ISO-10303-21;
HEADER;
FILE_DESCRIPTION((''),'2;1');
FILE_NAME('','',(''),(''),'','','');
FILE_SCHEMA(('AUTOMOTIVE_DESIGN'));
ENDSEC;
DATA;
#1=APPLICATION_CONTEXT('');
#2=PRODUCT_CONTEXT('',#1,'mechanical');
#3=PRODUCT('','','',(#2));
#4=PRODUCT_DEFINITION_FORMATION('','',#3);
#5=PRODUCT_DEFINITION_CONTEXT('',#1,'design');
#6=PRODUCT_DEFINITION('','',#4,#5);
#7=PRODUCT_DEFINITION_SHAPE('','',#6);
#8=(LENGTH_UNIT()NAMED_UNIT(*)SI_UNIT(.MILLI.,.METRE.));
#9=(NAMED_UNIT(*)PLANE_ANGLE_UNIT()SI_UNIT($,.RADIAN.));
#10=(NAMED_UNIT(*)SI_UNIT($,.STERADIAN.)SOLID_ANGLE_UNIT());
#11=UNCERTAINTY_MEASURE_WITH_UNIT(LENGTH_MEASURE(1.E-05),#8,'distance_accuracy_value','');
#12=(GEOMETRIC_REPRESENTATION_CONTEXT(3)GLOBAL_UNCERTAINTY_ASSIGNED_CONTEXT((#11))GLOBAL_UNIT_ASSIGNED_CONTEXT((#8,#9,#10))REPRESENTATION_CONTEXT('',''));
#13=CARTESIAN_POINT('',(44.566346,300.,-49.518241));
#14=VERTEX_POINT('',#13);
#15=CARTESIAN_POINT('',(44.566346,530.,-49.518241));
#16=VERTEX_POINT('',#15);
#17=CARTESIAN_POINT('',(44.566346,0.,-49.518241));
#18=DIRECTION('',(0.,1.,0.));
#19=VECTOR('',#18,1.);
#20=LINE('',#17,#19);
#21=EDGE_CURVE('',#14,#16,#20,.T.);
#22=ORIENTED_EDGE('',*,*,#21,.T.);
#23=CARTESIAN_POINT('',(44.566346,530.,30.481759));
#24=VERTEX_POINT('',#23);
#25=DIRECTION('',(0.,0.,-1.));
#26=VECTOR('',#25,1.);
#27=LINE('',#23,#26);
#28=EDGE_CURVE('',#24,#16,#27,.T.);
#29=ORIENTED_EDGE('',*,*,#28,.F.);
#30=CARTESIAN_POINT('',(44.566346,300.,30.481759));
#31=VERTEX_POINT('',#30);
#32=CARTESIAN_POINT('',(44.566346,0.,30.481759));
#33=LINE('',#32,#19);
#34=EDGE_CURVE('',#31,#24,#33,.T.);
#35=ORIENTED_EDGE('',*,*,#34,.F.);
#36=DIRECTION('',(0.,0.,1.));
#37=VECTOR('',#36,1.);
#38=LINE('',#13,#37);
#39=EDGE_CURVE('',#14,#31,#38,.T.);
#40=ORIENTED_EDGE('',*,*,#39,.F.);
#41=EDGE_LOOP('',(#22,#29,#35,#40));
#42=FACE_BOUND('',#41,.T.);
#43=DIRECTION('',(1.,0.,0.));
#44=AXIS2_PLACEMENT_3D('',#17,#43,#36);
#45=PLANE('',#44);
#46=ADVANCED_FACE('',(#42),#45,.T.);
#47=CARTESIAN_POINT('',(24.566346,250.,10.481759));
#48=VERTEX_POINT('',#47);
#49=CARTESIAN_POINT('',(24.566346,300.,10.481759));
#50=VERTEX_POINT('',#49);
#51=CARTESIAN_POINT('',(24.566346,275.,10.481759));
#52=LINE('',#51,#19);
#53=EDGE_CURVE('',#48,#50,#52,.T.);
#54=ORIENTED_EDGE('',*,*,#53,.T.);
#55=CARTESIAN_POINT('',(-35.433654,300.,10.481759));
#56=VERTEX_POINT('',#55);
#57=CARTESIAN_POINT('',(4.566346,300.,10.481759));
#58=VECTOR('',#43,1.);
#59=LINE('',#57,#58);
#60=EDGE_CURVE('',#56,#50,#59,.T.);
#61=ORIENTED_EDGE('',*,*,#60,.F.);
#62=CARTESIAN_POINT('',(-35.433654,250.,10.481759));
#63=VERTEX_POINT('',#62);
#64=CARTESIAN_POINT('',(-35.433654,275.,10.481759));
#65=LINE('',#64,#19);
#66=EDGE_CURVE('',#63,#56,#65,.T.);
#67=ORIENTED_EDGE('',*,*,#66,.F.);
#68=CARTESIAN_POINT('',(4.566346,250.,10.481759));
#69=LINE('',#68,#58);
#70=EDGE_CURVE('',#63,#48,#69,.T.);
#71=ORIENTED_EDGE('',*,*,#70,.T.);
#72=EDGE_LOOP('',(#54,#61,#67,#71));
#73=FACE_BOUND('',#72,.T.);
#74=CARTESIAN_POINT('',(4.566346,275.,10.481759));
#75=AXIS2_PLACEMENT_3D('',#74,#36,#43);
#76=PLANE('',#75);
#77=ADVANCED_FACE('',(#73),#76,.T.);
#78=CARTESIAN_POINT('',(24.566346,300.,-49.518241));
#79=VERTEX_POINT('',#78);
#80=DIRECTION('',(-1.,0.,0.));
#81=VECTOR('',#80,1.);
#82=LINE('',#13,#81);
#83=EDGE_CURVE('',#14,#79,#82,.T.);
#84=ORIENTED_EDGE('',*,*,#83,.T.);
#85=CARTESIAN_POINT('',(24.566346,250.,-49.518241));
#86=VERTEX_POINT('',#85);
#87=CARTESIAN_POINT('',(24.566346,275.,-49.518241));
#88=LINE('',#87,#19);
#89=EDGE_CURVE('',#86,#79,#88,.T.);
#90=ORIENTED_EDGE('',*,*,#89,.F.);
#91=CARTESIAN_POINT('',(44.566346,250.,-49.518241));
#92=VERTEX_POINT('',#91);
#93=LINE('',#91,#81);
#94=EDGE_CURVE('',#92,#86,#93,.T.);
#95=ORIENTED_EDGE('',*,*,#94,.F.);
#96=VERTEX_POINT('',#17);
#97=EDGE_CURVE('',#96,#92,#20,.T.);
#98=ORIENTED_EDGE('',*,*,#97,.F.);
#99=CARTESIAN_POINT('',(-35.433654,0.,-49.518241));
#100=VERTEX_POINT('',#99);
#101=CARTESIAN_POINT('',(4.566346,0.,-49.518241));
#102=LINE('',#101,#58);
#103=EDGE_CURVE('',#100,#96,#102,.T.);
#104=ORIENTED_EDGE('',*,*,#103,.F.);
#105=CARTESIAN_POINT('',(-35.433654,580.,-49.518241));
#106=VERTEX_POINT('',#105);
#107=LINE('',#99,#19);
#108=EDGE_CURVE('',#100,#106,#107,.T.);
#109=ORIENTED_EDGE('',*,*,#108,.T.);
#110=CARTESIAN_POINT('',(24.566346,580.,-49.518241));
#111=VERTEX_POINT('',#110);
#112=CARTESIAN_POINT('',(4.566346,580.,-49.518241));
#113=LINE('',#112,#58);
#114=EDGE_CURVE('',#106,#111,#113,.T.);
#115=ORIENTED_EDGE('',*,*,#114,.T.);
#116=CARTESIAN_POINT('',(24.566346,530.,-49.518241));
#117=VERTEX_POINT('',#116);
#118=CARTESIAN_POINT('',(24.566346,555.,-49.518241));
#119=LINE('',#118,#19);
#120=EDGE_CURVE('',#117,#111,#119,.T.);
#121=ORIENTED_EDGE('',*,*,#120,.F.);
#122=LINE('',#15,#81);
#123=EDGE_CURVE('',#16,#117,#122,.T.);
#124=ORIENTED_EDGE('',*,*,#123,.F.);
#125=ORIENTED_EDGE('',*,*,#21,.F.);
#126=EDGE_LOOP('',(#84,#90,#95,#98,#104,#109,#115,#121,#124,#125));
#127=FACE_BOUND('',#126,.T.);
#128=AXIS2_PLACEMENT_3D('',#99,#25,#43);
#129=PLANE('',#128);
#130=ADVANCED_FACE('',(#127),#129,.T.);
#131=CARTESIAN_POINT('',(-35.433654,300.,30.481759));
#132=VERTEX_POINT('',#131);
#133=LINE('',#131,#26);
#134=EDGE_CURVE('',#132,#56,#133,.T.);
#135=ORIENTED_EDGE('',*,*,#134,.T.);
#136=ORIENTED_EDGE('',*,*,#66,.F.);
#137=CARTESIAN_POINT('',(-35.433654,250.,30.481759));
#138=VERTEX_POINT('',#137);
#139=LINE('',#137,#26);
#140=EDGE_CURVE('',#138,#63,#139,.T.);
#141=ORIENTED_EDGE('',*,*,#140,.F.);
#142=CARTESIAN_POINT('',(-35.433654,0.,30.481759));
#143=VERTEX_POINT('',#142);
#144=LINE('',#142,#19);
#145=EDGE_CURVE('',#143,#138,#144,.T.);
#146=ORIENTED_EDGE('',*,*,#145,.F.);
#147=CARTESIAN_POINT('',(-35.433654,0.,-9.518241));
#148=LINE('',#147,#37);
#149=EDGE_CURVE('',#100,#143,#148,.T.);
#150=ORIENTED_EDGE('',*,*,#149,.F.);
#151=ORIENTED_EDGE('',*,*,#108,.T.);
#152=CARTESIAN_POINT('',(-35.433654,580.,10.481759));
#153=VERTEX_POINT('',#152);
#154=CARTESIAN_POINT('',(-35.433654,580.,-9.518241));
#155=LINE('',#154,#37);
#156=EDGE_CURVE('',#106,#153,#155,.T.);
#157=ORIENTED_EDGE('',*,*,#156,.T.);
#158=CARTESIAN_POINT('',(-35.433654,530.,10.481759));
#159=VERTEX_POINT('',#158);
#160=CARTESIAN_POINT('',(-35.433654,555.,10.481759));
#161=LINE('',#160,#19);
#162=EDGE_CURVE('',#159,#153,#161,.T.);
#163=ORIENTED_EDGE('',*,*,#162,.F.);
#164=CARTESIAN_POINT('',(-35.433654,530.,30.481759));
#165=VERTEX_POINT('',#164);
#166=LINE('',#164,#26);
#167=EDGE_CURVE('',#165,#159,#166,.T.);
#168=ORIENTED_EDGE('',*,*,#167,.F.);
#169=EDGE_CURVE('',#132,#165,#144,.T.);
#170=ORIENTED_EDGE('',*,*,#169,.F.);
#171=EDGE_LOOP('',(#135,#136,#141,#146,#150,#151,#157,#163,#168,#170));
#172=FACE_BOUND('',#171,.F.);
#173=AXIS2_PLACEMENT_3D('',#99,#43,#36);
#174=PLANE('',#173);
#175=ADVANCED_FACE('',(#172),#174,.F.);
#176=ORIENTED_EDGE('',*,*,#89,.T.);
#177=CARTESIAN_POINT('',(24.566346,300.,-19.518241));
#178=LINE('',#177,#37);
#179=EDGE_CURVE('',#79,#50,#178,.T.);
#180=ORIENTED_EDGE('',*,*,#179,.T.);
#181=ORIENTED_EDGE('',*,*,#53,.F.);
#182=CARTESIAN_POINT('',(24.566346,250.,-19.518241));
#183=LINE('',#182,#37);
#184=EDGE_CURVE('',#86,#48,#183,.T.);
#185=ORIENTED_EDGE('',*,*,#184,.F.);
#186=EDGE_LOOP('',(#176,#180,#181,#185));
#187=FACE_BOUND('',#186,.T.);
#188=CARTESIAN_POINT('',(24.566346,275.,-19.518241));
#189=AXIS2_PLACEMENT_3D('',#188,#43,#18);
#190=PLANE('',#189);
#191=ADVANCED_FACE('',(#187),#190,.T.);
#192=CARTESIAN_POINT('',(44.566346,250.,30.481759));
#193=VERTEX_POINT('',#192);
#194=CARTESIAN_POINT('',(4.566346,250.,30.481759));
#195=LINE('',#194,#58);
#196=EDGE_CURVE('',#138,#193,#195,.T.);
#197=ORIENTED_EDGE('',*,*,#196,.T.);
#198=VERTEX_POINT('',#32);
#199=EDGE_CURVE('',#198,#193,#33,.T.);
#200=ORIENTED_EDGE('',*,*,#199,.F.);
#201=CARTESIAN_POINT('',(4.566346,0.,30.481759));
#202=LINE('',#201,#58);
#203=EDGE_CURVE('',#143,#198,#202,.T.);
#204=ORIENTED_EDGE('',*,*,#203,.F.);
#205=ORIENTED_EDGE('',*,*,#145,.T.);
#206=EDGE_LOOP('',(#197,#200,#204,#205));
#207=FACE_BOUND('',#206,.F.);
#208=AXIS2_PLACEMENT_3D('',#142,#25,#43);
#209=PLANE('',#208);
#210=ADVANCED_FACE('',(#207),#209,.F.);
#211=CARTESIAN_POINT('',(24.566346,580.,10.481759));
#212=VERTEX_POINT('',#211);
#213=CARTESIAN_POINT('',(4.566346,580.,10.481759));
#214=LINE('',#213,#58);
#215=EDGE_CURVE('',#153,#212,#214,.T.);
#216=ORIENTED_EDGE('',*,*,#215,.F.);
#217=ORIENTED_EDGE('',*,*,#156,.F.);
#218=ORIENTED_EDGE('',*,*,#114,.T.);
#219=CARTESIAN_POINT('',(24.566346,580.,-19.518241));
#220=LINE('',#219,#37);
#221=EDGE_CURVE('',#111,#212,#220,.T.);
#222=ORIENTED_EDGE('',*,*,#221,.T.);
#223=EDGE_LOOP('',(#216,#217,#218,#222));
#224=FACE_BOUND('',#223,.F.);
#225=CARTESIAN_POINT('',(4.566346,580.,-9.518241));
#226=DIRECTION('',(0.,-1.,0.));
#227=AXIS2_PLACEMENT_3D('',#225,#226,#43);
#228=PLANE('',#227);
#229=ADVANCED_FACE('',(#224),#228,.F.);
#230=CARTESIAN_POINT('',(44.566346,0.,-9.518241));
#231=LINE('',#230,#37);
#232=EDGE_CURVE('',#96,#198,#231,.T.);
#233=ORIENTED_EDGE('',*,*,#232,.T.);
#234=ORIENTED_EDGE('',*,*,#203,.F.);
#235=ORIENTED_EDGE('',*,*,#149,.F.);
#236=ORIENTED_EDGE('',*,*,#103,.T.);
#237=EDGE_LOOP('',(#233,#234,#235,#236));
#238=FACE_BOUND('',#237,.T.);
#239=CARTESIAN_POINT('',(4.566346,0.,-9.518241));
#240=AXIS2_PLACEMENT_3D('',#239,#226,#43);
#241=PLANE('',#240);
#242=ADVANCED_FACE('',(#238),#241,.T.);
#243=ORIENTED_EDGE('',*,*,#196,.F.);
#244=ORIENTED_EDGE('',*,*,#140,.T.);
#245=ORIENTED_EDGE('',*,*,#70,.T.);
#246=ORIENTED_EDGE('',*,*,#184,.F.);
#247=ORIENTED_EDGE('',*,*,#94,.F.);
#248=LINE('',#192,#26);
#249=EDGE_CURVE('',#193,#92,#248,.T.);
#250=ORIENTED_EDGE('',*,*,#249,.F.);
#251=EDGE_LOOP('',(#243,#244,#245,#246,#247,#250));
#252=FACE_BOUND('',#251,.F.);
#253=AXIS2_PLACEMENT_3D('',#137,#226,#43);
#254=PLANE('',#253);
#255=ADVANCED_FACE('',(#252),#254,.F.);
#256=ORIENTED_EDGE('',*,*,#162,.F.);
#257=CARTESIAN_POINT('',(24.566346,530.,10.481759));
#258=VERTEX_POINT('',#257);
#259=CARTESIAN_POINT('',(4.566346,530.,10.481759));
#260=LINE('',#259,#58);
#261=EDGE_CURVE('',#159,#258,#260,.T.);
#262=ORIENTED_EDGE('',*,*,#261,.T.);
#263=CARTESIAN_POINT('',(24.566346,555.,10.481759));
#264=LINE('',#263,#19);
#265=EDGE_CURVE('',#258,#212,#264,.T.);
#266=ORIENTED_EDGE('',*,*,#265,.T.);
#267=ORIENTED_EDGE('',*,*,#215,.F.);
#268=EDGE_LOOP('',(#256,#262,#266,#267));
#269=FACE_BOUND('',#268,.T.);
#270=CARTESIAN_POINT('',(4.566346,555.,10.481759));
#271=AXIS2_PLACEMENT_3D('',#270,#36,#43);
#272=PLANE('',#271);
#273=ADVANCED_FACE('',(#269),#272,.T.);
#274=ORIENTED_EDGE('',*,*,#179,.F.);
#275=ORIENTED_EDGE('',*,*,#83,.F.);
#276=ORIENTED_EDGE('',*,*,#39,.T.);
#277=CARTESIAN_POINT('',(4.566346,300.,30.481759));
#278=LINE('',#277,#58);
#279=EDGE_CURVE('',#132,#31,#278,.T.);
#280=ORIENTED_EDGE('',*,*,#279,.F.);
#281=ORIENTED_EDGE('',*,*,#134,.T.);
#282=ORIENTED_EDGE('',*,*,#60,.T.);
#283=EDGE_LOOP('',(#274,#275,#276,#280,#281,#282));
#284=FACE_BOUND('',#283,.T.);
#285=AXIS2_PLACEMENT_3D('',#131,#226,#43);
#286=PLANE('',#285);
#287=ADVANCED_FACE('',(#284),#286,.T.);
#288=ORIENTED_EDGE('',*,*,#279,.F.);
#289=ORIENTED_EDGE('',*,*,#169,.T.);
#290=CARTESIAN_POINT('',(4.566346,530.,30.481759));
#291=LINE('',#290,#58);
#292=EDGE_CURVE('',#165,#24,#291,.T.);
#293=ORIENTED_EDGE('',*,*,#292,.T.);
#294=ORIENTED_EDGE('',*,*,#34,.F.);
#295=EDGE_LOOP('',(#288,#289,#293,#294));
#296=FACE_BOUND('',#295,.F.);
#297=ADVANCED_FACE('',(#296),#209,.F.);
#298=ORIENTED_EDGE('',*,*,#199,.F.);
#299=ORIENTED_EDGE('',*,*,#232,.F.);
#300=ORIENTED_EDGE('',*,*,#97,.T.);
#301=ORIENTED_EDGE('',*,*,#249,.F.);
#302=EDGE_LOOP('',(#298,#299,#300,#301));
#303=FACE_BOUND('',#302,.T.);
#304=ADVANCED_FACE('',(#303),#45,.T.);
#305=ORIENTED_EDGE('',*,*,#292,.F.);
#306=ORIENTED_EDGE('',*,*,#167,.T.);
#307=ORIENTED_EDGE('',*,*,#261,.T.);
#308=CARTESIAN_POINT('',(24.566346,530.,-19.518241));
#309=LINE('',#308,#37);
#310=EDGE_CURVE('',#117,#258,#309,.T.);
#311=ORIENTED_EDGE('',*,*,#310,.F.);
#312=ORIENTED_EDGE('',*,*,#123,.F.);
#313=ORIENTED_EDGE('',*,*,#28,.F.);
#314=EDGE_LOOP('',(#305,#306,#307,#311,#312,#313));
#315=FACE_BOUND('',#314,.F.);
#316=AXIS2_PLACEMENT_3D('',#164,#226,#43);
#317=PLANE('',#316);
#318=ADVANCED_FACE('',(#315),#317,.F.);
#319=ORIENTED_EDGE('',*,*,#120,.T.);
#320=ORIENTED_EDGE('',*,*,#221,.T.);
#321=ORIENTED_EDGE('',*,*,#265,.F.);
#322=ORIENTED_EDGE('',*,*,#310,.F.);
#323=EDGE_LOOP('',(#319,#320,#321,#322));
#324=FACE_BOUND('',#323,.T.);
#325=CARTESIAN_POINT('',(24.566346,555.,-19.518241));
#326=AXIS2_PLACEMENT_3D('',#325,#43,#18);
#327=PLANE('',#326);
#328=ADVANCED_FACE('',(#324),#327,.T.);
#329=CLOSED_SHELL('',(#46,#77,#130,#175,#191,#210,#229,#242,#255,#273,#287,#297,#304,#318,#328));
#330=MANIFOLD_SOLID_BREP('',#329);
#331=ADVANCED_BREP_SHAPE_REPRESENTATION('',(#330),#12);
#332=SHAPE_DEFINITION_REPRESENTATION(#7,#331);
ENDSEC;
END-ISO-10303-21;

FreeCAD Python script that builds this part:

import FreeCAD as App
import Part
import Sketcher
Q = App.Units.Quantity


def add_polygon(sketch, points):
    """Adds a closed chain of lines whose ends are joined by coincident constraints."""
    first, n = sketch.GeometryCount, len(points)
    for a, b in zip(points, points[1:] + points[:1]):
        sketch.addGeometry(Part.LineSegment(App.Vector(*a, 0), App.Vector(*b, 0)), False)
    for i in range(n):
        sketch.addConstraint(Sketcher.Constraint("Coincident", first + i, 2, first + (i + 1) % n, 1))

doc = App.newDocument("Part")
params = doc.addObject("Spreadsheet::Sheet", "Params")
for row, (alias, value) in enumerate([
    ("sketch1_width", "80 mm"),
    ("pad1_length", "580 mm"),
    ("sketch2_width", "80 mm"),
    ("sketch2_height", "50 mm"),
    ("pocket1_length", "20 mm"),
    ("sketch3_width", "50 mm"),
    ("sketch3_height", "60 mm"),
    ("pocket2_length", "20 mm"),
    ("sketch4_width", "80 mm"),
    ("sketch4_height", "50 mm"),
    ("pocket3_length", "20 mm"),
    ("sketch5_width", "50 mm"),
    ("sketch5_height", "60 mm"),
    ("pocket4_length", "20 mm"),
], start=1):
    params.set(f"A{row}", alias)
    params.set(f"B{row}", "=" + value)
    params.setAlias(f"B{row}", alias)

body = doc.addObject("PartDesign::Body", "Body")

sketch1 = doc.addObject("Sketcher::SketchObject", "Sketch")
body.addObject(sketch1)
sketch1.AttachmentSupport = (doc.XZ_Plane, [""])
sketch1.MapMode = "FlatFace"
add_polygon(sketch1, [(-35, 30), (-35, -50), (45, -50), (45, 30)])
sketch1.addConstraint(Sketcher.Constraint("Vertical", 0))
sketch1.addConstraint(Sketcher.Constraint("Horizontal", 1))
sketch1.addConstraint(Sketcher.Constraint("Vertical", 2))
sketch1.addConstraint(Sketcher.Constraint("Horizontal", 3))
sketch1.addConstraint(Sketcher.Constraint("Equal", 3, 0))
sketch1.addConstraint(Sketcher.Constraint("DistanceX", 1, 1, 1, 2, Q("80 mm")))
sketch1.addConstraint(Sketcher.Constraint("DistanceY", 0, 2, -1, 1, Q("49.518241 mm")))
sketch1.addConstraint(Sketcher.Constraint("DistanceX", 0, 2, -1, 1, Q("35.433654 mm")))
sketch1.setExpression("Constraints[9]", "Params.sketch1_width")
pad1 = doc.addObject("PartDesign::Pad", "Pad")
body.addObject(pad1)
pad1.Profile = sketch1
pad1.setExpression("Length", "Params.pad1_length")
pad1.Reversed = True

sketch2 = doc.addObject("Sketcher::SketchObject", "Sketch001")
body.addObject(sketch2)
sketch2.AttachmentSupport = (doc.XY_Plane, [""])
sketch2.MapMode = "FlatFace"
sketch2.AttachmentOffset = App.Placement(App.Vector(0, 0, 30.481759), App.Rotation())
add_polygon(sketch2, [(-35, 300), (-35, 250), (45, 250), (45, 300)])
sketch2.addConstraint(Sketcher.Constraint("Vertical", 0))
sketch2.addConstraint(Sketcher.Constraint("Horizontal", 1))
sketch2.addConstraint(Sketcher.Constraint("Vertical", 2))
sketch2.addConstraint(Sketcher.Constraint("Horizontal", 3))
sketch2.addConstraint(Sketcher.Constraint("DistanceX", 1, 1, 1, 2, Q("80 mm")))
sketch2.addConstraint(Sketcher.Constraint("DistanceY", 0, 2, 0, 1, Q("50 mm")))
sketch2.addConstraint(Sketcher.Constraint("DistanceY", -1, 1, 0, 2, Q("250 mm")))
sketch2.addConstraint(Sketcher.Constraint("DistanceX", 0, 2, -1, 1, Q("35.433654 mm")))
sketch2.setExpression("Constraints[8]", "Params.sketch2_width")
sketch2.setExpression("Constraints[9]", "Params.sketch2_height")
pocket1 = doc.addObject("PartDesign::Pocket", "Pocket")
body.addObject(pocket1)
pocket1.Profile = sketch2
pocket1.setExpression("Length", "Params.pocket1_length")

sketch3 = doc.addObject("Sketcher::SketchObject", "Sketch002")
body.addObject(sketch3)
sketch3.AttachmentSupport = (doc.YZ_Plane, [""])
sketch3.MapMode = "FlatFace"
sketch3.AttachmentOffset = App.Placement(App.Vector(0, 0, 44.566346), App.Rotation())
add_polygon(sketch3, [(250, 10), (250, -50), (300, -50), (300, 10)])
sketch3.addConstraint(Sketcher.Constraint("Vertical", 0))
sketch3.addConstraint(Sketcher.Constraint("Horizontal", 1))
sketch3.addConstraint(Sketcher.Constraint("Vertical", 2))
sketch3.addConstraint(Sketcher.Constraint("Horizontal", 3))
sketch3.addConstraint(Sketcher.Constraint("DistanceX", 1, 1, 1, 2, Q("50 mm")))
sketch3.addConstraint(Sketcher.Constraint("DistanceY", 0, 2, 0, 1, Q("60 mm")))
sketch3.addConstraint(Sketcher.Constraint("DistanceX", -1, 1, 0, 2, Q("250 mm")))
sketch3.addConstraint(Sketcher.Constraint("DistanceY", 0, 2, -1, 1, Q("49.518241 mm")))
sketch3.setExpression("Constraints[8]", "Params.sketch3_width")
sketch3.setExpression("Constraints[9]", "Params.sketch3_height")
pocket2 = doc.addObject("PartDesign::Pocket", "Pocket001")
body.addObject(pocket2)
pocket2.Profile = sketch3
pocket2.setExpression("Length", "Params.pocket2_length")

sketch4 = doc.addObject("Sketcher::SketchObject", "Sketch003")
body.addObject(sketch4)
sketch4.AttachmentSupport = (doc.XY_Plane, [""])
sketch4.MapMode = "FlatFace"
sketch4.AttachmentOffset = App.Placement(App.Vector(0, 0, 30.481759), App.Rotation())
add_polygon(sketch4, [(-35, 580), (-35, 530), (45, 530), (45, 580)])
sketch4.addConstraint(Sketcher.Constraint("Vertical", 0))
sketch4.addConstraint(Sketcher.Constraint("Horizontal", 1))
sketch4.addConstraint(Sketcher.Constraint("Vertical", 2))
sketch4.addConstraint(Sketcher.Constraint("Horizontal", 3))
sketch4.addConstraint(Sketcher.Constraint("DistanceX", 1, 1, 1, 2, Q("80 mm")))
sketch4.addConstraint(Sketcher.Constraint("DistanceY", 0, 2, 0, 1, Q("50 mm")))
sketch4.addConstraint(Sketcher.Constraint("DistanceY", -1, 1, 0, 2, Q("530 mm")))
sketch4.addConstraint(Sketcher.Constraint("DistanceX", 0, 2, -1, 1, Q("35.433654 mm")))
sketch4.setExpression("Constraints[8]", "Params.sketch4_width")
sketch4.setExpression("Constraints[9]", "Params.sketch4_height")
pocket3 = doc.addObject("PartDesign::Pocket", "Pocket002")
body.addObject(pocket3)
pocket3.Profile = sketch4
pocket3.setExpression("Length", "Params.pocket3_length")

sketch5 = doc.addObject("Sketcher::SketchObject", "Sketch004")
body.addObject(sketch5)
sketch5.AttachmentSupport = (doc.YZ_Plane, [""])
sketch5.MapMode = "FlatFace"
sketch5.AttachmentOffset = App.Placement(App.Vector(0, 0, 44.566346), App.Rotation())
add_polygon(sketch5, [(530, 10), (530, -50), (580, -50), (580, 10)])
sketch5.addConstraint(Sketcher.Constraint("Vertical", 0))
sketch5.addConstraint(Sketcher.Constraint("Horizontal", 1))
sketch5.addConstraint(Sketcher.Constraint("Vertical", 2))
sketch5.addConstraint(Sketcher.Constraint("Horizontal", 3))
sketch5.addConstraint(Sketcher.Constraint("DistanceX", 1, 1, 1, 2, Q("50 mm")))
sketch5.addConstraint(Sketcher.Constraint("DistanceY", 0, 2, 0, 1, Q("60 mm")))
sketch5.addConstraint(Sketcher.Constraint("DistanceX", -1, 1, 0, 2, Q("530 mm")))
sketch5.addConstraint(Sketcher.Constraint("DistanceY", 0, 2, -1, 1, Q("49.518241 mm")))
sketch5.setExpression("Constraints[8]", "Params.sketch5_width")
sketch5.setExpression("Constraints[9]", "Params.sketch5_height")
pocket4 = doc.addObject("PartDesign::Pocket", "Pocket003")
body.addObject(pocket4)
pocket4.Profile = sketch5
pocket4.setExpression("Length", "Params.pocket4_length")

doc.recompute()
